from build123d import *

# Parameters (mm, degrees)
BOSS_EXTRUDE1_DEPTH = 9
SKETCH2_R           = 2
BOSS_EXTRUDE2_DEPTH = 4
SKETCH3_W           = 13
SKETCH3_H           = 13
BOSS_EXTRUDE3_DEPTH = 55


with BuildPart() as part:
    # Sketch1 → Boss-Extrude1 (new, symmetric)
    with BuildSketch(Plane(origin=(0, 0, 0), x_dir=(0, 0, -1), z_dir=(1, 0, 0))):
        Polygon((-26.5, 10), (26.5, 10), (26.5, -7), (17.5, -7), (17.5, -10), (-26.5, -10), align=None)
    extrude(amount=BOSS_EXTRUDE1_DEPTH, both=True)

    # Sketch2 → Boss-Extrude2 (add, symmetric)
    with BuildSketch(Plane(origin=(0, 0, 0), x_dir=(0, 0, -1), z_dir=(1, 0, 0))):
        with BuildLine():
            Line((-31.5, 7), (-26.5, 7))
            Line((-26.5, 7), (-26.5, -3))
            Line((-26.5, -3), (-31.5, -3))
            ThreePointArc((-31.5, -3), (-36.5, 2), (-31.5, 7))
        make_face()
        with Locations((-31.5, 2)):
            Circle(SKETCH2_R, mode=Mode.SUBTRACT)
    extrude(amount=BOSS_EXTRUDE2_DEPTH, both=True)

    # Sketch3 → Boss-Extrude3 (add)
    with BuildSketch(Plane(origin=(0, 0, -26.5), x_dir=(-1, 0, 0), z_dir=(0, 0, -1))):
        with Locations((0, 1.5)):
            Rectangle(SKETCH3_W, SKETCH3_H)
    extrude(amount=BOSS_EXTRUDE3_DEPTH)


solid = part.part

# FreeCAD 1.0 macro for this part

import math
import FreeCAD as App
import Part
import Sketcher

V = App.Vector
Q = App.Units.Quantity

doc = App.newDocument("Part")
body = doc.addObject("PartDesign::Body", "Body")

sketch1 = body.newObject("Sketcher::SketchObject", "Sketch")
sketch1.AttachmentSupport = (doc.getObject("YZ_Plane"), [""])
sketch1.MapMode = "FlatFace"
sketch1.addGeometry(Part.LineSegment(V(10, -26.5, 0), V(10, 26.5, 0)), False)
sketch1.addGeometry(Part.LineSegment(V(10, 26.5, 0), V(-10, 26.5, 0)), False)
sketch1.addGeometry(Part.LineSegment(V(-10, 26.5, 0), V(-10, -17.5, 0)), False)
sketch1.addGeometry(Part.LineSegment(V(-10, -17.5, 0), V(-7, -17.5, 0)), False)
sketch1.addGeometry(Part.LineSegment(V(-7, -17.5, 0), V(-7, -26.5, 0)), False)
sketch1.addGeometry(Part.LineSegment(V(-7, -26.5, 0), V(10, -26.5, 0)), False)
sketch1.addConstraint(Sketcher.Constraint("Coincident", 0, 2, 1, 1))
sketch1.addConstraint(Sketcher.Constraint("Coincident", 1, 2, 2, 1))
sketch1.addConstraint(Sketcher.Constraint("Coincident", 2, 2, 3, 1))
sketch1.addConstraint(Sketcher.Constraint("Coincident", 3, 2, 4, 1))
sketch1.addConstraint(Sketcher.Constraint("Coincident", 4, 2, 5, 1))
sketch1.addConstraint(Sketcher.Constraint("Coincident", 5, 2, 0, 1))
sketch1.addConstraint(Sketcher.Constraint("Vertical", 0))
sketch1.addConstraint(Sketcher.Constraint("Horizontal", 1))
sketch1.addConstraint(Sketcher.Constraint("Vertical", 2))
sketch1.addConstraint(Sketcher.Constraint("Horizontal", 3))
sketch1.addConstraint(Sketcher.Constraint("Vertical", 4))
sketch1.addConstraint(Sketcher.Constraint("Horizontal", 5))
sketch1.addConstraint(Sketcher.Constraint("Symmetric", 1, 2, 5, 2, -1, 1))
sketch1.addConstraint(Sketcher.Constraint("DistanceX", 1, 2, 1, 1, Q("20 mm")))
sketch1.addConstraint(Sketcher.Constraint("DistanceX", 3, 1, 3, 2, Q("3 mm")))
sketch1.addConstraint(Sketcher.Constraint("DistanceY", 0, 1, 0, 2, Q("53 mm")))
sketch1.addConstraint(Sketcher.Constraint("DistanceY", 2, 2, 2, 1, Q("44 mm")))
pad1 = body.newObject("PartDesign::Pad", "Pad")
pad1.Profile = sketch1
pad1.Length = 18
pad1.Midplane = True

sketch2 = body.newObject("Sketcher::SketchObject", "Sketch001")
sketch2.AttachmentSupport = (doc.getObject("YZ_Plane"), [""])
sketch2.MapMode = "FlatFace"
sketch2.addGeometry(Part.LineSegment(V(7, 26.5, 0), V(7, 31.5, 0)), False)
sketch2.addGeometry(Part.ArcOfCircle(Part.Circle(V(2, 31.5, 0), V(0, 0, 1), 5), math.radians(0), math.radians(180)), False)
sketch2.addGeometry(Part.LineSegment(V(-3, 31.5, 0), V(-3, 26.5, 0)), False)
sketch2.addGeometry(Part.LineSegment(V(-3, 26.5, 0), V(7, 26.5, 0)), False)
sketch2.addGeometry(Part.Circle(V(2, 31.5, 0), V(0, 0, 1), 2), False)
sketch2.addConstraint(Sketcher.Constraint("Tangent", 0, 2, 1, 1))
sketch2.addConstraint(Sketcher.Constraint("Tangent", 1, 2, 2, 1))
sketch2.addConstraint(Sketcher.Constraint("Coincident", 2, 2, 3, 1))
sketch2.addConstraint(Sketcher.Constraint("Coincident", 3, 2, 0, 1))
sketch2.addConstraint(Sketcher.Constraint("Vertical", 0))
sketch2.addConstraint(Sketcher.Constraint("Vertical", 2))
sketch2.addConstraint(Sketcher.Constraint("Horizontal", 3))
sketch2.addConstraint(Sketcher.Constraint("Coincident", 4, 3, 1, 3))
sketch2.addConstraint(Sketcher.Constraint("Diameter", 4, Q("4 mm")))
sketch2.addConstraint(Sketcher.Constraint("Radius", 1, Q("5 mm")))
sketch2.addConstraint(Sketcher.Constraint("DistanceY", 0, 1, 0, 2, Q("5 mm")))
sketch2.addConstraint(Sketcher.Constraint("DistanceX", -1, 1, 1, 3, Q("2 mm")))
sketch2.addConstraint(Sketcher.Constraint("DistanceY", -1, 1, 1, 3, Q("31.5 mm")))
pad2 = body.newObject("PartDesign::Pad", "Pad001")
pad2.Profile = sketch2
pad2.Length = 8
pad2.Midplane = True

sketch3 = body.newObject("Sketcher::SketchObject", "Sketch002")
sketch3.AttachmentSupport = (doc.getObject("XY_Plane"), [""])
sketch3.MapMode = "FlatFace"
sketch3.AttachmentOffset = App.Placement(V(0, 0, -26.5), App.Rotation())
sketch3.addGeometry(Part.LineSegment(V(6.5, 8, 0), V(6.5, -5, 0)), False)
sketch3.addGeometry(Part.LineSegment(V(6.5, -5, 0), V(-6.5, -5, 0)), False)
sketch3.addGeometry(Part.LineSegment(V(-6.5, -5, 0), V(-6.5, 8, 0)), False)
sketch3.addGeometry(Part.LineSegment(V(-6.5, 8, 0), V(6.5, 8, 0)), False)
sketch3.addConstraint(Sketcher.Constraint("Coincident", 0, 2, 1, 1))
sketch3.addConstraint(Sketcher.Constraint("Coincident", 1, 2, 2, 1))
sketch3.addConstraint(Sketcher.Constraint("Coincident", 2, 2, 3, 1))
sketch3.addConstraint(Sketcher.Constraint("Coincident", 3, 2, 0, 1))
sketch3.addConstraint(Sketcher.Constraint("Vertical", 0))
sketch3.addConstraint(Sketcher.Constraint("Horizontal", 1))
sketch3.addConstraint(Sketcher.Constraint("Vertical", 2))
sketch3.addConstraint(Sketcher.Constraint("Horizontal", 3))
sketch3.addConstraint(Sketcher.Constraint("Equal", 3, 0))
sketch3.addConstraint(Sketcher.Constraint("DistanceX", 1, 2, 1, 1, Q("13 mm")))
sketch3.addConstraint(Sketcher.Constraint("DistanceY", 0, 2, -1, 1, Q("5 mm")))
sketch3.addConstraint(Sketcher.Constraint("DistanceX", -1, 1, 0, 2, Q("6.5 mm")))
pad3 = body.newObject("PartDesign::Pad", "Pad002")
pad3.Profile = sketch3
pad3.Length = 55
pad3.Reversed = True

doc.recompute()
